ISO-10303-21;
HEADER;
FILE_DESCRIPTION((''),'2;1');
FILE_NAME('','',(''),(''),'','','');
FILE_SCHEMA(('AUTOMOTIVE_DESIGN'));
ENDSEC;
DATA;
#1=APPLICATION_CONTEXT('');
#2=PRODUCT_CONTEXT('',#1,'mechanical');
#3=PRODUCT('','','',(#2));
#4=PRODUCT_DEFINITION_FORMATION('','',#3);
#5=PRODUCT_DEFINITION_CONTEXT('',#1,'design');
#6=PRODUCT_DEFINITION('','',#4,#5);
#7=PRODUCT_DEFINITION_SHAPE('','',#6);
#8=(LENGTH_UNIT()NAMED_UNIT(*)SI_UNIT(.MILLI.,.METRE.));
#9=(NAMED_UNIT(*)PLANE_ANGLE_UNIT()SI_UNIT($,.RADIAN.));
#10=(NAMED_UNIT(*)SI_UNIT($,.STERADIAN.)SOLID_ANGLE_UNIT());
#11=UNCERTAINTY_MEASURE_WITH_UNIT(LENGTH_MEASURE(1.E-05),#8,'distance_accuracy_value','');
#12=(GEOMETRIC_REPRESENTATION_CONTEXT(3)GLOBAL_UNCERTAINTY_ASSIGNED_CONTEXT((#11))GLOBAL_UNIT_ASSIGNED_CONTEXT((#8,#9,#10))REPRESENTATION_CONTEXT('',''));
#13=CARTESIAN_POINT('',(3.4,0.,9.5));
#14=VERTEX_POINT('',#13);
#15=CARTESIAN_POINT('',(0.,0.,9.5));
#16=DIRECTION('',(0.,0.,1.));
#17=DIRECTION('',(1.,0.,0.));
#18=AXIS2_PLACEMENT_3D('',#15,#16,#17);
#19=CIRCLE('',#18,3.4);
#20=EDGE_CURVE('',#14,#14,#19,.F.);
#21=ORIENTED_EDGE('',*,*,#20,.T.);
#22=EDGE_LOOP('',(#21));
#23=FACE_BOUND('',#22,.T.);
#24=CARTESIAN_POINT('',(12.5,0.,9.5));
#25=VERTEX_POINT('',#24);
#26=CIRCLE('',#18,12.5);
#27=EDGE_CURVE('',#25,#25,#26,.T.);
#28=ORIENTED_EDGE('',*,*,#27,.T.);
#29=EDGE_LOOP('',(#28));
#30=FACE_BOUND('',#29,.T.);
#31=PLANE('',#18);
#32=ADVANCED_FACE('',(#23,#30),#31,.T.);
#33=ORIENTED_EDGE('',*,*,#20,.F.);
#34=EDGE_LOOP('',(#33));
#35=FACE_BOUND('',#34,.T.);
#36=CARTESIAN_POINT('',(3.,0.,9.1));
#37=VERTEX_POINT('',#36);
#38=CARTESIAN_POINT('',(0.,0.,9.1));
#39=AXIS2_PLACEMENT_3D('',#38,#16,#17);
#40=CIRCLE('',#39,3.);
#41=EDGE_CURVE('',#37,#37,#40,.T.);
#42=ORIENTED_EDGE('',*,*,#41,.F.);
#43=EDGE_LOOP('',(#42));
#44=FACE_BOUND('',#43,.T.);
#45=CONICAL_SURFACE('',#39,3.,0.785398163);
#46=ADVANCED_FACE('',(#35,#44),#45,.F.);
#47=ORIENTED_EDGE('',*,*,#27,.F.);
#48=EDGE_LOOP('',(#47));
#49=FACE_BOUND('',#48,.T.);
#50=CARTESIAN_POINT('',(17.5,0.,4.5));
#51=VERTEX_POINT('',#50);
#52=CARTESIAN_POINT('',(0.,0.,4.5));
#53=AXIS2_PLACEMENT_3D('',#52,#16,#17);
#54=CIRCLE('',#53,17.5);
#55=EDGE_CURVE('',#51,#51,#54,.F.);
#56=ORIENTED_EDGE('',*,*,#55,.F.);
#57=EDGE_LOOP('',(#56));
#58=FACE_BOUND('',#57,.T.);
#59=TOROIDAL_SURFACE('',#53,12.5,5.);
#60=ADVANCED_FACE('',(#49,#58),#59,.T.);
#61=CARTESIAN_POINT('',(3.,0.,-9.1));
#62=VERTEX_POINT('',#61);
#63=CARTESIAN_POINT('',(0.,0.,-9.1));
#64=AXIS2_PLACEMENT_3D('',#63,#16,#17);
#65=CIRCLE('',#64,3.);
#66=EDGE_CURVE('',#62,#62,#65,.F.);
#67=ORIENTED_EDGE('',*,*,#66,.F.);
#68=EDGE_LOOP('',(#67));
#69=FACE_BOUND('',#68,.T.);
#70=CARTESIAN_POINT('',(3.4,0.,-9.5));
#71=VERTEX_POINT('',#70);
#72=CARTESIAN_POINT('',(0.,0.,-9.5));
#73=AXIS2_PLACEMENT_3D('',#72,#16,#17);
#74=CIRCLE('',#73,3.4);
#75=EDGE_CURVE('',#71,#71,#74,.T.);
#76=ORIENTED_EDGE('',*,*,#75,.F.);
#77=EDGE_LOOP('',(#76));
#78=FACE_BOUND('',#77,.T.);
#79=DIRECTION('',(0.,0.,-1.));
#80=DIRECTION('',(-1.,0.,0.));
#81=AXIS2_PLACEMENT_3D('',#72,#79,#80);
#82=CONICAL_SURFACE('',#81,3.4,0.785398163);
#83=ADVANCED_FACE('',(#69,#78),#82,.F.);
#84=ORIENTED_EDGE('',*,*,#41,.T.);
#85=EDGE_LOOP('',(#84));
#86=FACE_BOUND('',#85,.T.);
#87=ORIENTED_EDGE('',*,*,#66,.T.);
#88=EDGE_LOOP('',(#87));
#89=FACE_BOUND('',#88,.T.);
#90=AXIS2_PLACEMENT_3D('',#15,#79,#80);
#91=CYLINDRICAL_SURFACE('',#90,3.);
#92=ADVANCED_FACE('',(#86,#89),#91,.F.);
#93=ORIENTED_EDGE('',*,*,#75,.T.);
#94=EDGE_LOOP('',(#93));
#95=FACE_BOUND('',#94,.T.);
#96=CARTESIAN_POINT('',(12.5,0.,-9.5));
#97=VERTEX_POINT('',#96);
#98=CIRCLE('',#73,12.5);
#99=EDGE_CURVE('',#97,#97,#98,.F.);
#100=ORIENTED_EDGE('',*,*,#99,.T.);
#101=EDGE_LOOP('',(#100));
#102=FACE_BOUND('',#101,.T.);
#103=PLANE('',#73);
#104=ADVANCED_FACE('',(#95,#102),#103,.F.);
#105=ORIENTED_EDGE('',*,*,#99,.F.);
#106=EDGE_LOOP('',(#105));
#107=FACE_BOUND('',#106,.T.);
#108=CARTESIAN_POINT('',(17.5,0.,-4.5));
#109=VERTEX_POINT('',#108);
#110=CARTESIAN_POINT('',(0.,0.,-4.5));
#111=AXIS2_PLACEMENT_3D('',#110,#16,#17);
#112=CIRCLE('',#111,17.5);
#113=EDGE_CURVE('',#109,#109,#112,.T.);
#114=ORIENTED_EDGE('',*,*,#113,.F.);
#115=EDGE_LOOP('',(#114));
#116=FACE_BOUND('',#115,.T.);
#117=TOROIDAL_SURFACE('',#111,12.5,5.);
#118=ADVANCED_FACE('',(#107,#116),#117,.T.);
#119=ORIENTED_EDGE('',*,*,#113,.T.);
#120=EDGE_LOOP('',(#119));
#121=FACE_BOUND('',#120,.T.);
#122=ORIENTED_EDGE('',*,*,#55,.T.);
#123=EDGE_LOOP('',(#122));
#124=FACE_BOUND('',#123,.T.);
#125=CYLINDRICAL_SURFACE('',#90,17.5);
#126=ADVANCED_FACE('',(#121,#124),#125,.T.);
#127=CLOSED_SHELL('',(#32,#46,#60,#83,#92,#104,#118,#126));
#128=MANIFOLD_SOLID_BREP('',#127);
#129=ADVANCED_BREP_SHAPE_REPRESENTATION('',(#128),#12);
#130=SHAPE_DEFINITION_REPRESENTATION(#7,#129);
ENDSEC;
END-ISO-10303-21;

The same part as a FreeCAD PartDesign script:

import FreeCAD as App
import Part
import Sketcher

V = App.Vector


def edges_at(feature, points):
    """Names of the edges that pass closest to the given points."""
    edges = feature.Shape.Edges
    near = lambda p: min(range(len(edges)), key=lambda i: edges[i].distToShape(Part.Vertex(*p))[0])
    return sorted({f"Edge{near(p) + 1}" for p in points})

doc = App.newDocument("Part")
body = doc.addObject("PartDesign::Body", "Body")

# Sketch on XY plane
sketch1 = doc.addObject("Sketcher::SketchObject", "Sketch")
body.addObject(sketch1)
sketch1.AttachmentSupport = (doc.XY_Plane, [""])
sketch1.MapMode = "FlatFace"
sketch1.addGeometry(Part.Circle(V(0, 0, 0), V(0, 0, 1), 17.5), False)
sketch1.addGeometry(Part.Circle(V(0, 0, 0), V(0, 0, 1), 3), False)
sketch1.addConstraint(Sketcher.Constraint("Coincident", 0, 3, -1, 1))
sketch1.addConstraint(Sketcher.Constraint("Coincident", 1, 3, -1, 1))
sketch1.addConstraint(Sketcher.Constraint("Diameter", 0, 35.0))
sketch1.addConstraint(Sketcher.Constraint("Diameter", 1, 6.0))
pad1 = doc.addObject("PartDesign::Pad", "Pad")
body.addObject(pad1)
pad1.Profile = sketch1
pad1.Length = 19
pad1.Midplane = True
doc.recompute()

fillet = doc.addObject("PartDesign::Fillet", "Fillet")
body.addObject(fillet)
fillet.Base = (pad1, edges_at(pad1, [(-17.5, 0, -9.5), (-17.5, 0, 9.5)]))
fillet.Radius = 5
doc.recompute()

chamfer = doc.addObject("PartDesign::Chamfer", "Chamfer")
body.addObject(chamfer)
chamfer.Base = (fillet, edges_at(fillet, [(-3, 0, -9.5), (-3, 0, 9.5)]))
chamfer.Size = 0.4

doc.recompute()
